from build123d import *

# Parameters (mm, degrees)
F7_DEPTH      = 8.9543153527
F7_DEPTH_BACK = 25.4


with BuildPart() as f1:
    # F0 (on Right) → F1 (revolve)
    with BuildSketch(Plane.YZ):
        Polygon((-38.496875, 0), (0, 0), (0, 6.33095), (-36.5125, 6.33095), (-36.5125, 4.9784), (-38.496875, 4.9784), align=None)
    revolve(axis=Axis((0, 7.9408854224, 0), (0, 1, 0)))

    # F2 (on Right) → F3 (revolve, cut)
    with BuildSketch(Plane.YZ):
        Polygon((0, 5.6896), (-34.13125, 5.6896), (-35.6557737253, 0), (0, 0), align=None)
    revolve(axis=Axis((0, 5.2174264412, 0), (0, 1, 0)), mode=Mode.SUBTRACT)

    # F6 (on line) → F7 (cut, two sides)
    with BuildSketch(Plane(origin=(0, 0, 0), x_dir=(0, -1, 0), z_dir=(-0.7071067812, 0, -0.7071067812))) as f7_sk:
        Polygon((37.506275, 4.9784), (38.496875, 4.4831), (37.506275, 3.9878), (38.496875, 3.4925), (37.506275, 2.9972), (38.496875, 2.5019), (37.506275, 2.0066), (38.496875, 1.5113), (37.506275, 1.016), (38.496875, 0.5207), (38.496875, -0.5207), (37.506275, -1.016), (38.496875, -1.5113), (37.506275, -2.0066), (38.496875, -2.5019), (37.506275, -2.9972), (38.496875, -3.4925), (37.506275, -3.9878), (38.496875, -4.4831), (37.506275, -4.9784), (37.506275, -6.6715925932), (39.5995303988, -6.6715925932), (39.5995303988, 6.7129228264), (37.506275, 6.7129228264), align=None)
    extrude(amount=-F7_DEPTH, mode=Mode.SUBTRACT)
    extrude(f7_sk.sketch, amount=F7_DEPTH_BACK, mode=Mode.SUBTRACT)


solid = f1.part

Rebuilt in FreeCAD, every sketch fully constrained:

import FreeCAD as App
import Part
import Sketcher

V = App.Vector
Q = App.Units.Quantity


def add_polygon(sketch, points):
    """Adds a closed chain of lines whose ends are joined by coincident constraints."""
    first, n = sketch.GeometryCount, len(points)
    for a, b in zip(points, points[1:] + points[:1]):
        sketch.addGeometry(Part.LineSegment(App.Vector(*a, 0), App.Vector(*b, 0)), False)
    for i in range(n):
        sketch.addConstraint(Sketcher.Constraint("Coincident", first + i, 2, first + (i + 1) % n, 1))

doc = App.newDocument("Part")
params = doc.addObject("Spreadsheet::Sheet", "Params")
for row, (alias, value) in enumerate([
    ("sketch1_width", "1.515625 in"),
    ("sketch1_width2", "1.4375 in"),
    ("sketch1_height", "0.196 in"),
    ("revolution_angle", "360 deg"),
    ("sketch2_width", "1.34375 in"),
    ("sketch2_height", "0.224 in"),
    ("groove_angle", "360 deg"),
    ("sketch3_height", "0.041 in"),
], start=1):
    params.set(f"A{row}", alias)
    params.set(f"B{row}", "=" + value)
    params.setAlias(f"B{row}", alias)

body = doc.addObject("PartDesign::Body", "Body")

# Sketch on YZ plane
sketch1 = body.newObject("Sketcher::SketchObject", "Sketch")
sketch1.AttachmentSupport = (doc.getObject("YZ_Plane"), [""])
sketch1.MapMode = "FlatFace"
add_polygon(sketch1, [(-38.496875, 0), (0, 0), (0, 6.33095), (-36.5125, 6.33095), (-36.5125, 4.9784), (-38.496875, 4.9784)])  # lines 0-5
sketch1.addConstraint(Sketcher.Constraint("Horizontal", 0))
sketch1.addConstraint(Sketcher.Constraint("Vertical", 1))
sketch1.addConstraint(Sketcher.Constraint("Horizontal", 2))
sketch1.addConstraint(Sketcher.Constraint("Vertical", 3))
sketch1.addConstraint(Sketcher.Constraint("Horizontal", 4))
sketch1.addConstraint(Sketcher.Constraint("Vertical", 5))
sketch1.addConstraint(Sketcher.Constraint("Coincident", 0, 2, -1, 1))
sketch1.addConstraint(Sketcher.Constraint("DistanceX", 0, 1, 0, 2, Q("1.515625 in")))
sketch1.addConstraint(Sketcher.Constraint("DistanceX", 2, 2, 2, 1, Q("1.4375 in")))
sketch1.addConstraint(Sketcher.Constraint("DistanceY", 5, 2, 5, 1, Q("0.196 in")))
sketch1.addConstraint(Sketcher.Constraint("DistanceY", 1, 1, 1, 2, 6.33095))
sketch1.setExpression("Constraints[13]", "Params.sketch1_width")
sketch1.setExpression("Constraints[14]", "Params.sketch1_width2")
sketch1.setExpression("Constraints[15]", "Params.sketch1_height")
revolution = body.newObject("PartDesign::Revolution", "Revolution")
revolution.Profile = sketch1
revolution.ReferenceAxis = (sketch1, ["H_Axis"])
revolution.setExpression("Angle", "Params.revolution_angle")

# Sketch on YZ plane
sketch2 = body.newObject("Sketcher::SketchObject", "Sketch001")
sketch2.AttachmentSupport = (doc.getObject("YZ_Plane"), [""])
sketch2.MapMode = "FlatFace"
add_polygon(sketch2, [(0, 5.6896), (-34.13125, 5.6896), (-35.655774, 0), (0, 0)])  # lines 0-3
sketch2.addConstraint(Sketcher.Constraint("Horizontal", 0))
sketch2.addConstraint(Sketcher.Constraint("Horizontal", 2))
sketch2.addConstraint(Sketcher.Constraint("Vertical", 3))
sketch2.addConstraint(Sketcher.Constraint("Coincident", 2, 2, -1, 1))
sketch2.addConstraint(Sketcher.Constraint("Angle", 1, Q("-105 deg")))
sketch2.addConstraint(Sketcher.Constraint("DistanceX", 0, 2, 0, 1, Q("1.34375 in")))
sketch2.addConstraint(Sketcher.Constraint("DistanceY", 3, 1, 3, 2, Q("0.224 in")))
sketch2.setExpression("Constraints[9]", "Params.sketch2_width")
sketch2.setExpression("Constraints[10]", "Params.sketch2_height")
groove = body.newObject("PartDesign::Groove", "Groove")
groove.Profile = sketch2
groove.ReferenceAxis = (sketch2, ["H_Axis"])
groove.setExpression("Angle", "Params.groove_angle")

# Sketch on an angled plane
sketch3 = body.newObject("Sketcher::SketchObject", "Sketch002")
sketch3.Placement = App.Placement(V(0, 0, 0), App.Rotation(V(0, -1, 0), V(-0.707106781, 0, 0.707106781), V(-0.707106781, 0, -0.707106781), "ZXY"))
add_polygon(sketch3, [(37.506275, 4.9784), (38.496875, 4.4831), (37.506275, 3.9878), (38.496875, 3.4925), (37.506275, 2.9972), (38.496875, 2.5019), (37.506275, 2.0066), (38.496875, 1.5113), (37.506275, 1.016), (38.496875, 0.5207), (38.496875, -0.5207), (37.506275, -1.016), (38.496875, -1.5113), (37.506275, -2.0066), (38.496875, -2.5019), (37.506275, -2.9972), (38.496875, -3.4925), (37.506275, -3.9878), (38.496875, -4.4831), (37.506275, -4.9784), (37.506275, -6.671593), (39.59953, -6.671593), (39.59953, 6.712923), (37.506275, 6.712923)])  # lines 0-23
sketch3.addConstraint(Sketcher.Constraint("Vertical", 9))
sketch3.addConstraint(Sketcher.Constraint("Vertical", 19))
sketch3.addConstraint(Sketcher.Constraint("Horizontal", 20))
sketch3.addConstraint(Sketcher.Constraint("Vertical", 21))
sketch3.addConstraint(Sketcher.Constraint("Horizontal", 22))
sketch3.addConstraint(Sketcher.Constraint("Vertical", 23))
sketch3.addConstraint(Sketcher.Constraint("Symmetric", 7, 2, 10, 2, -1))
sketch3.addConstraint(Sketcher.Constraint("Symmetric", 6, 2, 11, 2, -1))
sketch3.addConstraint(Sketcher.Constraint("Symmetric", 5, 2, 12, 2, -1))
sketch3.addConstraint(Sketcher.Constraint("Symmetric", 4, 2, 13, 2, -1))
sketch3.addConstraint(Sketcher.Constraint("Symmetric", 3, 2, 14, 2, -1))
sketch3.addConstraint(Sketcher.Constraint("Symmetric", 2, 2, 15, 2, -1))
sketch3.addConstraint(Sketcher.Constraint("Symmetric", 1, 2, 16, 2, -1))
sketch3.addConstraint(Sketcher.Constraint("Symmetric", 0, 2, 17, 2, -1))
sketch3.addConstraint(Sketcher.Constraint("Symmetric", 18, 2, 23, 2, -1))
sketch3.addConstraint(Sketcher.Constraint("Parallel", 0, 2))
sketch3.addConstraint(Sketcher.Constraint("Parallel", 1, 3))
sketch3.addConstraint(Sketcher.Constraint("Parallel", 2, 4))
sketch3.addConstraint(Sketcher.Constraint("Parallel", 3, 5))
sketch3.addConstraint(Sketcher.Constraint("Parallel", 4, 6))
sketch3.addConstraint(Sketcher.Constraint("Parallel", 5, 7))
sketch3.addConstraint(Sketcher.Constraint("Parallel", 6, 8))
sketch3.addConstraint(Sketcher.Constraint("Parallel", 7, 10))
sketch3.addConstraint(Sketcher.Constraint("Parallel", 8, 11))
sketch3.addConstraint(Sketcher.Constraint("Vertical", 0, 2, 2, 2))
sketch3.addConstraint(Sketcher.Constraint("Vertical", 1, 2, 3, 2))
sketch3.addConstraint(Sketcher.Constraint("Vertical", 2, 2, 4, 2))
sketch3.addConstraint(Sketcher.Constraint("Vertical", 3, 2, 5, 2))
sketch3.addConstraint(Sketcher.Constraint("Vertical", 4, 2, 6, 2))
sketch3.addConstraint(Sketcher.Constraint("Vertical", 5, 2, 7, 2))
sketch3.addConstraint(Sketcher.Constraint("Vertical", 6, 2, 8, 2))
sketch3.addConstraint(Sketcher.Constraint("Vertical", 16, 2, 18, 2))
sketch3.addConstraint(Sketcher.Constraint("DistanceY", 9, 2, 9, 1, Q("0.041 in")))
sketch3.addConstraint(Sketcher.Constraint("DistanceY", -1, 1, 7, 2, Q("0.04 in")))
sketch3.addConstraint(Sketcher.Constraint("DistanceX", -1, 1, 0, 2, Q("1.515625 in")))
sketch3.addConstraint(Sketcher.Constraint("DistanceX", 1, 2, 0, 2, Q("0.039 in")))
sketch3.addConstraint(Sketcher.Constraint("DistanceX", 20, 1, 20, 2, 2.093255))
sketch3.addConstraint(Sketcher.Constraint("DistanceY", 19, 2, 19, 1, 1.693193))
sketch3.addConstraint(Sketcher.Constraint("DistanceY", 21, 1, 21, 2, 13.384515))
sketch3.setExpression("Constraints[56]", "Params.sketch3_height")
pocket1 = body.newObject("PartDesign::Pocket", "Pocket")
pocket1.Profile = sketch3
pocket1.Type = "ThroughAll"
pocket1.Midplane = True

doc.recompute()
